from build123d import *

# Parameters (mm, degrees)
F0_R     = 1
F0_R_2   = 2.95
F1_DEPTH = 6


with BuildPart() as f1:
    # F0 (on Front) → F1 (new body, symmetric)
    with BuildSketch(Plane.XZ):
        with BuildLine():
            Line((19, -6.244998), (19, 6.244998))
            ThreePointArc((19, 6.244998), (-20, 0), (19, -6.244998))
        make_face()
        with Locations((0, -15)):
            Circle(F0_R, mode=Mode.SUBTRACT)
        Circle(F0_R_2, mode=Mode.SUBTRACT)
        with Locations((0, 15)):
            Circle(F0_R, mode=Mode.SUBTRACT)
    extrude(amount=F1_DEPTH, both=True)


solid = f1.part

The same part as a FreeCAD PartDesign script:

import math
import FreeCAD as App
import Part
import Sketcher
Q = App.Units.Quantity

doc = App.newDocument("Part")
body = doc.addObject("PartDesign::Body", "Body")

sketch1 = body.newObject("Sketcher::SketchObject", "Sketch")
sketch1.AttachmentSupport = (doc.getObject("XZ_Plane"), [""])
sketch1.MapMode = "FlatFace"
sketch1.addGeometry([
    Part.LineSegment(App.Vector(19, -6.2, 0), App.Vector(19, 6.2, 0)),
    Part.ArcOfCircle(Part.Circle(App.Vector(0, 0, 0), App.Vector(0, 0, 1), 20), math.radians(18), math.radians(342)),
    Part.Circle(App.Vector(0, -15, 0), App.Vector(0, 0, 1), 1),
    Part.Circle(App.Vector(0, 0, 0), App.Vector(0, 0, 1), 3),
    Part.Circle(App.Vector(0, 15, 0), App.Vector(0, 0, 1), 1),
], False)
sketch1.addConstraint([
    Sketcher.Constraint("Coincident", 0, 1, 1, 2),
    Sketcher.Constraint("Coincident", 1, 1, 0, 2),
    Sketcher.Constraint("Vertical", 0),
    Sketcher.Constraint("Coincident", 1, 3, -1, 1),
    Sketcher.Constraint("Coincident", 3, 3, -1, 1),
    Sketcher.Constraint("Equal", 2, 4),
    Sketcher.Constraint("Symmetric", 2, 3, 4, 3, -1, 1),
    Sketcher.Constraint("PointOnObject", 2, 3, -2),
    Sketcher.Constraint("Diameter", 2, Q("2 mm")),
    Sketcher.Constraint("Radius", 1, Q("20 mm")),
    Sketcher.Constraint("Diameter", 3, Q("5.9 mm")),
    Sketcher.Constraint("DistanceY", 2, 3, -1, 1, Q("15 mm")),
    Sketcher.Constraint("DistanceX", -1, 1, 0, 1, Q("19 mm")),
])
pad1 = body.newObject("PartDesign::Pad", "Pad")
pad1.Profile = sketch1
pad1.Length = 12
pad1.Midplane = True

doc.recompute()
